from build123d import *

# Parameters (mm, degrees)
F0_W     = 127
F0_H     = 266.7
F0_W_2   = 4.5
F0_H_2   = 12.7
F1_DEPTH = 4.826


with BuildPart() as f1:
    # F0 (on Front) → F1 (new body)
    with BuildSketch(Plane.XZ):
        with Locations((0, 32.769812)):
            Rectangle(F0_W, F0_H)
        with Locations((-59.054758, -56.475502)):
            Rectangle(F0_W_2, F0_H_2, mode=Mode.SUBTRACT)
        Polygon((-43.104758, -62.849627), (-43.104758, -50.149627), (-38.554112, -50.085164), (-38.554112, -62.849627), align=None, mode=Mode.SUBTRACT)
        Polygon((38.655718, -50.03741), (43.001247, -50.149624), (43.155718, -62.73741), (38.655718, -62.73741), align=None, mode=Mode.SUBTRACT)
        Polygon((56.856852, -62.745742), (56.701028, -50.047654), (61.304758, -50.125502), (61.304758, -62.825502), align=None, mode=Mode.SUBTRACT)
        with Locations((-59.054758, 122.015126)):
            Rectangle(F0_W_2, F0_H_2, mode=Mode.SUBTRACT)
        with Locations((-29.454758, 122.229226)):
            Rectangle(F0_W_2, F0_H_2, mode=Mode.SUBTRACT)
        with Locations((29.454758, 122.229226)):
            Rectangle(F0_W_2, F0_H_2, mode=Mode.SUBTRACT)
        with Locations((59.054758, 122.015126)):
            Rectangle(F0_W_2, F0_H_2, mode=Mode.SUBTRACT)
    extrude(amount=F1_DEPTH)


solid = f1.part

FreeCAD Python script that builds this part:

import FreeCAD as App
import Part
import Sketcher

V = App.Vector
Q = App.Units.Quantity

doc = App.newDocument("Part")
params = doc.addObject("Spreadsheet::Sheet", "Params")
for row, (alias, value) in enumerate([
    ("sketch1_width", "5 in"),
    ("sketch1_height", "10.5 in"),
    ("sketch1_height2", "0.5 in"),
    ("pad1_length", "0.19 in"),
], start=1):
    params.set(f"A{row}", alias)
    params.set(f"B{row}", "=" + value)
    params.setAlias(f"B{row}", alias)

body = doc.addObject("PartDesign::Body", "Body")

sketch1 = doc.addObject("Sketcher::SketchObject", "Sketch")
body.addObject(sketch1)
sketch1.AttachmentSupport = (doc.XZ_Plane, [""])
sketch1.MapMode = "FlatFace"
sketch1.addGeometry(Part.LineSegment(V(-63.5, 166.1, 0), V(-63.5, -100.6, 0)), False)
sketch1.addGeometry(Part.LineSegment(V(-63.5, -100.6, 0), V(63.5, -100.6, 0)), False)
sketch1.addGeometry(Part.LineSegment(V(63.5, -100.6, 0), V(63.5, 166.1, 0)), False)
sketch1.addGeometry(Part.LineSegment(V(63.5, 166.1, 0), V(-63.5, 166.1, 0)), False)
sketch1.addGeometry(Part.LineSegment(V(-56.8, -62.8, 0), V(-61.3, -62.8, 0)), False)
sketch1.addGeometry(Part.LineSegment(V(-61.3, -62.8, 0), V(-61.3, -50.1, 0)), False)
sketch1.addGeometry(Part.LineSegment(V(-61.3, -50.1, 0), V(-56.8, -50.1, 0)), False)
sketch1.addGeometry(Part.LineSegment(V(-56.8, -50.1, 0), V(-56.8, -62.8, 0)), False)
sketch1.addGeometry(Part.LineSegment(V(-38.6, -62.8, 0), V(-43.1, -62.8, 0)), False)
sketch1.addGeometry(Part.LineSegment(V(-43.1, -62.8, 0), V(-43.1, -50.1, 0)), False)
sketch1.addGeometry(Part.LineSegment(V(-43.1, -50.1, 0), V(-38.6, -50.1, 0)), False)
sketch1.addGeometry(Part.LineSegment(V(-38.6, -50.1, 0), V(-38.6, -62.8, 0)), False)
sketch1.addGeometry(Part.LineSegment(V(38.7, -62.7, 0), V(38.7, -50, 0)), False)
sketch1.addGeometry(Part.LineSegment(V(38.7, -50, 0), V(43, -50.1, 0)), False)
sketch1.addGeometry(Part.LineSegment(V(43, -50.1, 0), V(43.2, -62.7, 0)), False)
sketch1.addGeometry(Part.LineSegment(V(43.2, -62.7, 0), V(38.7, -62.7, 0)), False)
sketch1.addGeometry(Part.LineSegment(V(61.3, -62.8, 0), V(56.9, -62.7, 0)), False)
sketch1.addGeometry(Part.LineSegment(V(56.9, -62.7, 0), V(56.7, -50, 0)), False)
sketch1.addGeometry(Part.LineSegment(V(56.7, -50, 0), V(61.3, -50.1, 0)), False)
sketch1.addGeometry(Part.LineSegment(V(61.3, -50.1, 0), V(61.3, -62.8, 0)), False)
sketch1.addGeometry(Part.LineSegment(V(-56.8, 115.7, 0), V(-61.3, 115.7, 0)), False)
sketch1.addGeometry(Part.LineSegment(V(-61.3, 115.7, 0), V(-61.3, 128.4, 0)), False)
sketch1.addGeometry(Part.LineSegment(V(-61.3, 128.4, 0), V(-56.8, 128.4, 0)), False)
sketch1.addGeometry(Part.LineSegment(V(-56.8, 128.4, 0), V(-56.8, 115.7, 0)), False)
sketch1.addGeometry(Part.LineSegment(V(-27.2, 115.9, 0), V(-31.7, 115.9, 0)), False)
sketch1.addGeometry(Part.LineSegment(V(-31.7, 115.9, 0), V(-31.7, 128.6, 0)), False)
sketch1.addGeometry(Part.LineSegment(V(-31.7, 128.6, 0), V(-27.2, 128.6, 0)), False)
sketch1.addGeometry(Part.LineSegment(V(-27.2, 128.6, 0), V(-27.2, 115.9, 0)), False)
sketch1.addGeometry(Part.LineSegment(V(31.7, 115.9, 0), V(27.2, 115.9, 0)), False)
sketch1.addGeometry(Part.LineSegment(V(27.2, 115.9, 0), V(27.2, 128.6, 0)), False)
sketch1.addGeometry(Part.LineSegment(V(27.2, 128.6, 0), V(31.7, 128.6, 0)), False)
sketch1.addGeometry(Part.LineSegment(V(31.7, 128.6, 0), V(31.7, 115.9, 0)), False)
sketch1.addGeometry(Part.LineSegment(V(61.3, 115.7, 0), V(56.8, 115.7, 0)), False)
sketch1.addGeometry(Part.LineSegment(V(56.8, 115.7, 0), V(56.8, 128.4, 0)), False)
sketch1.addGeometry(Part.LineSegment(V(56.8, 128.4, 0), V(61.3, 128.4, 0)), False)
sketch1.addGeometry(Part.LineSegment(V(61.3, 128.4, 0), V(61.3, 115.7, 0)), False)
sketch1.addConstraint(Sketcher.Constraint("Coincident", 0, 2, 1, 1))
sketch1.addConstraint(Sketcher.Constraint("Coincident", 1, 2, 2, 1))
sketch1.addConstraint(Sketcher.Constraint("Coincident", 2, 2, 3, 1))
sketch1.addConstraint(Sketcher.Constraint("Coincident", 3, 2, 0, 1))
sketch1.addConstraint(Sketcher.Constraint("Coincident", 4, 2, 5, 1))
sketch1.addConstraint(Sketcher.Constraint("Coincident", 5, 2, 6, 1))
sketch1.addConstraint(Sketcher.Constraint("Coincident", 6, 2, 7, 1))
sketch1.addConstraint(Sketcher.Constraint("Coincident", 7, 2, 4, 1))
sketch1.addConstraint(Sketcher.Constraint("Coincident", 8, 2, 9, 1))
sketch1.addConstraint(Sketcher.Constraint("Coincident", 9, 2, 10, 1))
sketch1.addConstraint(Sketcher.Constraint("Coincident", 10, 2, 11, 1))
sketch1.addConstraint(Sketcher.Constraint("Coincident", 11, 2, 8, 1))
sketch1.addConstraint(Sketcher.Constraint("Coincident", 12, 2, 13, 1))
sketch1.addConstraint(Sketcher.Constraint("Coincident", 13, 2, 14, 1))
sketch1.addConstraint(Sketcher.Constraint("Coincident", 14, 2, 15, 1))
sketch1.addConstraint(Sketcher.Constraint("Coincident", 15, 2, 12, 1))
sketch1.addConstraint(Sketcher.Constraint("Coincident", 16, 2, 17, 1))
sketch1.addConstraint(Sketcher.Constraint("Coincident", 17, 2, 18, 1))
sketch1.addConstraint(Sketcher.Constraint("Coincident", 18, 2, 19, 1))
sketch1.addConstraint(Sketcher.Constraint("Coincident", 19, 2, 16, 1))
sketch1.addConstraint(Sketcher.Constraint("Coincident", 20, 2, 21, 1))
sketch1.addConstraint(Sketcher.Constraint("Coincident", 21, 2, 22, 1))
sketch1.addConstraint(Sketcher.Constraint("Coincident", 22, 2, 23, 1))
sketch1.addConstraint(Sketcher.Constraint("Coincident", 23, 2, 20, 1))
sketch1.addConstraint(Sketcher.Constraint("Coincident", 24, 2, 25, 1))
sketch1.addConstraint(Sketcher.Constraint("Coincident", 25, 2, 26, 1))
sketch1.addConstraint(Sketcher.Constraint("Coincident", 26, 2, 27, 1))
sketch1.addConstraint(Sketcher.Constraint("Coincident", 27, 2, 24, 1))
sketch1.addConstraint(Sketcher.Constraint("Coincident", 28, 2, 29, 1))
sketch1.addConstraint(Sketcher.Constraint("Coincident", 29, 2, 30, 1))
sketch1.addConstraint(Sketcher.Constraint("Coincident", 30, 2, 31, 1))
sketch1.addConstraint(Sketcher.Constraint("Coincident", 31, 2, 28, 1))
sketch1.addConstraint(Sketcher.Constraint("Coincident", 32, 2, 33, 1))
sketch1.addConstraint(Sketcher.Constraint("Coincident", 33, 2, 34, 1))
sketch1.addConstraint(Sketcher.Constraint("Coincident", 34, 2, 35, 1))
sketch1.addConstraint(Sketcher.Constraint("Coincident", 35, 2, 32, 1))
sketch1.addConstraint(Sketcher.Constraint("Vertical", 0))
sketch1.addConstraint(Sketcher.Constraint("Horizontal", 1))
sketch1.addConstraint(Sketcher.Constraint("Vertical", 2))
sketch1.addConstraint(Sketcher.Constraint("Horizontal", 3))
sketch1.addConstraint(Sketcher.Constraint("Horizontal", 4))
sketch1.addConstraint(Sketcher.Constraint("Vertical", 5))
sketch1.addConstraint(Sketcher.Constraint("Horizontal", 6))
sketch1.addConstraint(Sketcher.Constraint("Vertical", 7))
sketch1.addConstraint(Sketcher.Constraint("Horizontal", 8))
sketch1.addConstraint(Sketcher.Constraint("Vertical", 9))
sketch1.addConstraint(Sketcher.Constraint("Vertical", 11))
sketch1.addConstraint(Sketcher.Constraint("Vertical", 12))
sketch1.addConstraint(Sketcher.Constraint("Horizontal", 15))
sketch1.addConstraint(Sketcher.Constraint("Vertical", 19))
sketch1.addConstraint(Sketcher.Constraint("Horizontal", 20))
sketch1.addConstraint(Sketcher.Constraint("Vertical", 21))
sketch1.addConstraint(Sketcher.Constraint("Horizontal", 22))
sketch1.addConstraint(Sketcher.Constraint("Vertical", 23))
sketch1.addConstraint(Sketcher.Constraint("Horizontal", 24))
sketch1.addConstraint(Sketcher.Constraint("Vertical", 25))
sketch1.addConstraint(Sketcher.Constraint("Horizontal", 26))
sketch1.addConstraint(Sketcher.Constraint("Vertical", 27))
sketch1.addConstraint(Sketcher.Constraint("Horizontal", 28))
sketch1.addConstraint(Sketcher.Constraint("Vertical", 29))
sketch1.addConstraint(Sketcher.Constraint("Horizontal", 30))
sketch1.addConstraint(Sketcher.Constraint("Vertical", 31))
sketch1.addConstraint(Sketcher.Constraint("Horizontal", 32))
sketch1.addConstraint(Sketcher.Constraint("Vertical", 33))
sketch1.addConstraint(Sketcher.Constraint("Horizontal", 34))
sketch1.addConstraint(Sketcher.Constraint("Vertical", 35))
sketch1.addConstraint(Sketcher.Constraint("Symmetric", 5, 2, 18, 2, -2))
sketch1.addConstraint(Sketcher.Constraint("Symmetric", 27, 2, 28, 2, -2))
sketch1.addConstraint(Sketcher.Constraint("Symmetric", 25, 2, 30, 2, -2))
sketch1.addConstraint(Sketcher.Constraint("Symmetric", 23, 2, 32, 2, -2))
sketch1.addConstraint(Sketcher.Constraint("Symmetric", 21, 2, 34, 2, -2))
sketch1.addConstraint(Sketcher.Constraint("Parallel", 14, 17))
sketch1.addConstraint(Sketcher.Constraint("Horizontal", 7, 2, 19, 2))
sketch1.addConstraint(Sketcher.Constraint("Vertical", 5, 2, 20, 2))
sketch1.addConstraint(Sketcher.Constraint("Vertical", 7, 2, 22, 2))
sketch1.addConstraint(Sketcher.Constraint("Equal", 6, 15))
sketch1.addConstraint(Sketcher.Constraint("Equal", 22, 24))
sketch1.addConstraint(Sketcher.Constraint("Equal", 7, 9))
sketch1.addConstraint(Sketcher.Constraint("Equal", 9, 12))
sketch1.addConstraint(Sketcher.Constraint("Equal", 19, 21))
sketch1.addConstraint(Sketcher.Constraint("Equal", 23, 25))
sketch1.addConstraint(Sketcher.Constraint("DistanceX", 1, 1, 1, 2, Q("5 in")))
sketch1.addConstraint(Sketcher.Constraint("DistanceY", 0, 2, 0, 1, Q("10.5 in")))
sketch1.addConstraint(Sketcher.Constraint("DistanceY", 5, 1, 5, 2, Q("0.5 in")))
sketch1.addConstraint(Sketcher.Constraint("DistanceX", 0, 2, -1, 1, Q("2.5 in")))
sketch1.addConstraint(Sketcher.Constraint("DistanceY", 11, 2, 13, 2, Q("0.5000001 in")))
sketch1.addConstraint(Sketcher.Constraint("DistanceX", 9, 2, 13, 2, Q("3.3900002 in")))
sketch1.addConstraint(Sketcher.Constraint("DistanceX", 4, 2, 4, 1, 4.5))
sketch1.addConstraint(Sketcher.Constraint("DistanceY", 5, 2, -1, 1, 50.125502))
sketch1.addConstraint(Sketcher.Constraint("DistanceX", 7, 2, 8, 2, 13.7))
sketch1.addConstraint(Sketcher.Constraint("DistanceX", 23, 2, 24, 2, 25.1))
sketch1.addConstraint(Sketcher.Constraint("DistanceY", 23, 2, 24, 2, 0.2141))
sketch1.addConstraint(Sketcher.Constraint("Distance", 16, 4.448621))
sketch1.addConstraint(Sketcher.Constraint("Distance", 18, 4.604388))
sketch1.addConstraint(Sketcher.Constraint("DistanceX", 8, 2, 8, 1, 4.550646))
sketch1.addConstraint(Sketcher.Constraint("DistanceY", 11, 2, 11, 1, 12.764463))
sketch1.addConstraint(Sketcher.Constraint("DistanceY", 0, 2, -1, 1, 100.580188))
sketch1.addConstraint(Sketcher.Constraint("DistanceY", 12, 2, -1, 1, 50.03741))
sketch1.addConstraint(Sketcher.Constraint("DistanceX", 24, 2, -1, 1, 31.704758))
sketch1.addConstraint(Sketcher.Constraint("DistanceY", 0, 2, 8, 2, 37.730561))
sketch1.addConstraint(Sketcher.Constraint("DistanceX", 12, 2, 1, 2, 24.844282))
sketch1.addConstraint(Sketcher.Constraint("DistanceY", 16, 2, 12, 2, 12.708332))
sketch1.addConstraint(Sketcher.Constraint("DistanceY", 5, 2, 20, 2, 165.790628))
sketch1.setExpression("Constraints[81]", "Params.sketch1_width")
sketch1.setExpression("Constraints[82]", "Params.sketch1_height")
sketch1.setExpression("Constraints[83]", "Params.sketch1_height2")
pad1 = doc.addObject("PartDesign::Pad", "Pad")
body.addObject(pad1)
pad1.Profile = sketch1
pad1.setExpression("Length", "Params.pad1_length")

doc.recompute()
